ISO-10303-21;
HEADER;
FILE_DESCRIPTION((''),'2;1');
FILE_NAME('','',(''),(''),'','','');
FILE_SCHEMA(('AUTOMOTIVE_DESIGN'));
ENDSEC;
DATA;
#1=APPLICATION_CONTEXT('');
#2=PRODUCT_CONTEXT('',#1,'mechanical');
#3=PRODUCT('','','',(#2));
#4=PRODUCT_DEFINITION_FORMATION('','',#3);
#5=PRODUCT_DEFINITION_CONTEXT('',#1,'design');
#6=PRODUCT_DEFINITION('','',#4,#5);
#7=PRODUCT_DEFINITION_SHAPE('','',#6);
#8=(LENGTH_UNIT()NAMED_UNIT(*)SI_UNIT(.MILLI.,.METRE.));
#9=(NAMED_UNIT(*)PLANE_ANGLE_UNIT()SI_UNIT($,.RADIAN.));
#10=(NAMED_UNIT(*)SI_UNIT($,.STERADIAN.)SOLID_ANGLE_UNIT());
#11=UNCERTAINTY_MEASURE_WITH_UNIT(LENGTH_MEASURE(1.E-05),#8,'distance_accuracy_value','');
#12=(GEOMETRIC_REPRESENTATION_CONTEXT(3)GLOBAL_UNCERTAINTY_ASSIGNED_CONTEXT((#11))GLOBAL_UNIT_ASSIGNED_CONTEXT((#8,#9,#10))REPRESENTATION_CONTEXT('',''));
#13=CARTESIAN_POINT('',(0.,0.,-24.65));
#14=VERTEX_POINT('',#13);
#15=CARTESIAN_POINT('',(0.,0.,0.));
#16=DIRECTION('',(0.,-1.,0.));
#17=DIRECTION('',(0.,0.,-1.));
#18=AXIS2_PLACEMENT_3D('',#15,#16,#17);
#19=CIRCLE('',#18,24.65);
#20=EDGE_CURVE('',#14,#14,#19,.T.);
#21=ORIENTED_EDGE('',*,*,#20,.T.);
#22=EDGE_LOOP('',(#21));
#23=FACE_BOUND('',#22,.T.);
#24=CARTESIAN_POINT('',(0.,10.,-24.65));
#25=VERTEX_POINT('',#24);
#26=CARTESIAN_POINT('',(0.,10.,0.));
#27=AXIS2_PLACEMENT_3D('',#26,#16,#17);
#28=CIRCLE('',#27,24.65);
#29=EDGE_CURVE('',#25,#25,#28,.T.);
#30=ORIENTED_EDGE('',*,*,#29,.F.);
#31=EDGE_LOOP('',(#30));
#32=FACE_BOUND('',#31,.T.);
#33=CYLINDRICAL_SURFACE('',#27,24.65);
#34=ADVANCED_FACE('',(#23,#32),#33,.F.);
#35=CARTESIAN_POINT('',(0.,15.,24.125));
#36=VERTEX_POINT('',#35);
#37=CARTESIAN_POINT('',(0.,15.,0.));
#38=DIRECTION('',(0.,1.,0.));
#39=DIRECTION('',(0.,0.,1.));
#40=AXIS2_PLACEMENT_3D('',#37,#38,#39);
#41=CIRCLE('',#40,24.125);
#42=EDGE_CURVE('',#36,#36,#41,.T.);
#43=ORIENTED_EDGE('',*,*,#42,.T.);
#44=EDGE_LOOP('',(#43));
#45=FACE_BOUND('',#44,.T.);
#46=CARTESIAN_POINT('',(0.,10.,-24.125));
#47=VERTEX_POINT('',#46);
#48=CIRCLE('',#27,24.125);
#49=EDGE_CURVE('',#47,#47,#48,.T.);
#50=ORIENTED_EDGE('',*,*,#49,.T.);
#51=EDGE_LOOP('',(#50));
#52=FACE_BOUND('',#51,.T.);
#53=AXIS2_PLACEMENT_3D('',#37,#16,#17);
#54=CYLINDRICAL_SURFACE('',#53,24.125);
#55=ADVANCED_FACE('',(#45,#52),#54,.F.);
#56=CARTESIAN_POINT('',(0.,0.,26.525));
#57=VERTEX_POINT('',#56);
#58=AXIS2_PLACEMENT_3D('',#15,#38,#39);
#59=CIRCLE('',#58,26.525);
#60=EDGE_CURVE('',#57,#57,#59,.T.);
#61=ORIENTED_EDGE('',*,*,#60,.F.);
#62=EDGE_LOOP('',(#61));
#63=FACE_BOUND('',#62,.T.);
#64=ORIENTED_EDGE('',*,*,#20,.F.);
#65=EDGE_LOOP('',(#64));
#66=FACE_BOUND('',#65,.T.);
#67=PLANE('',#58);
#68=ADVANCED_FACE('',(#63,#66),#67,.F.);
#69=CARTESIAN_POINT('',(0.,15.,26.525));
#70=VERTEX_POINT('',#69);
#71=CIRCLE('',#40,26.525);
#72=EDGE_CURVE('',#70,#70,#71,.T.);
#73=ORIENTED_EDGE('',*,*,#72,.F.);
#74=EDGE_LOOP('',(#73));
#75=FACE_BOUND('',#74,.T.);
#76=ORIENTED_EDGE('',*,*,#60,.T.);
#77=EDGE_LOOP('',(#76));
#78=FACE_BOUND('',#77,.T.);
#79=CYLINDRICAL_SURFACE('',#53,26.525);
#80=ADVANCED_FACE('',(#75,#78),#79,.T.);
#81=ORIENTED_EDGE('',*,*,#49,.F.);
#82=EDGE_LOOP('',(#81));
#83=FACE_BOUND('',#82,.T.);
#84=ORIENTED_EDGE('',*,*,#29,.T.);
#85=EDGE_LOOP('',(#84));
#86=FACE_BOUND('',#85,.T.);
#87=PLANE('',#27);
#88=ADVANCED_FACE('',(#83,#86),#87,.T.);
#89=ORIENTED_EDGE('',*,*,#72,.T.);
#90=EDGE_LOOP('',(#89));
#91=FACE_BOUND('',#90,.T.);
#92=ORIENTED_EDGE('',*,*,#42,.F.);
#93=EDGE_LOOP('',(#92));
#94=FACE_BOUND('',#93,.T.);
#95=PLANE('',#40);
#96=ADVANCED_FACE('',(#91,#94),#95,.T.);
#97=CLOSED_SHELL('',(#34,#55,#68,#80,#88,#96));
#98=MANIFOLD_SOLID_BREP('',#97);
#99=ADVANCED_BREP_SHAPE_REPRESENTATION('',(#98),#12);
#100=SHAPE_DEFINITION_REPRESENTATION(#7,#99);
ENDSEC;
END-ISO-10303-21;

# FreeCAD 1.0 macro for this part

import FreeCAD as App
import Part
import Sketcher
Q = App.Units.Quantity

doc = App.newDocument("Part")
body = doc.addObject("PartDesign::Body", "Body")

sketch1 = body.newObject("Sketcher::SketchObject", "Sketch")
sketch1.AttachmentSupport = (doc.getObject("XZ_Plane"), [""])
sketch1.MapMode = "FlatFace"
sketch1.addGeometry([
    Part.Circle(App.Vector(0, 0, 0), App.Vector(0, 0, 1), 26.525),
    Part.Circle(App.Vector(0, 0, 0), App.Vector(0, 0, 1), 24.125),
], False)
sketch1.addConstraint([
    Sketcher.Constraint("Coincident", 0, 3, -1, 1),
    Sketcher.Constraint("Coincident", 1, 3, -1, 1),
    Sketcher.Constraint("Diameter", 0, Q("53.05 mm")),
    Sketcher.Constraint("Diameter", 1, Q("48.25 mm")),
])
pad1 = body.newObject("PartDesign::Pad", "Pad")
pad1.Profile = sketch1
pad1.Length = 15
pad1.Reversed = True

sketch2 = body.newObject("Sketcher::SketchObject", "Sketch001")
sketch2.AttachmentSupport = (doc.getObject("XZ_Plane"), [""])
sketch2.MapMode = "FlatFace"
sketch2.addGeometry(Part.Circle(App.Vector(0, 0, 0), App.Vector(0, 0, 1), 24.65), False)
sketch2.addConstraint([
    Sketcher.Constraint("Coincident", 0, 3, -1, 1),
    Sketcher.Constraint("Diameter", 0, Q("49.3 mm")),
])
pocket1 = body.newObject("PartDesign::Pocket", "Pocket")
pocket1.Profile = sketch2
pocket1.Length = 10

doc.recompute()
